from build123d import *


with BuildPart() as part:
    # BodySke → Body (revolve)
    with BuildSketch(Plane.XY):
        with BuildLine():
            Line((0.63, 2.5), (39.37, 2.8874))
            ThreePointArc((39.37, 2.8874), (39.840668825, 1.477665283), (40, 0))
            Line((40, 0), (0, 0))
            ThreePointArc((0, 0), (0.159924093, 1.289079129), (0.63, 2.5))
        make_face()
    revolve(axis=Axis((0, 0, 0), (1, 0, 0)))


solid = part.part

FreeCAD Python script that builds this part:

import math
import FreeCAD as App
import Part
import Sketcher
from FreeCAD import Vector
Q = App.Units.Quantity

doc = App.newDocument("Part")
params = doc.addObject("Spreadsheet::Sheet", "Params")
for row, (alias, value) in enumerate([
    ("sketch1_width", "40 mm"),
    ("revolution_angle", "360 deg"),
], start=1):
    params.set(f"A{row}", alias)
    params.set(f"B{row}", "=" + value)
    params.setAlias(f"B{row}", alias)

body = doc.addObject("PartDesign::Body", "Body")

sketch1 = body.newObject("Sketcher::SketchObject", "Sketch")
sketch1.AttachmentSupport = (doc.getObject("XY_Plane"), [""])
sketch1.MapMode = "FlatFace"
sketch1.addGeometry(Part.LineSegment(Vector(39.4, 2.9, 0), Vector(0.6, 2.5, 0)), False)
sketch1.addGeometry(Part.ArcOfCircle(Part.Circle(Vector(5.3, 0, 0), Vector(0, 0, 1), 5.3), math.radians(152), math.radians(180)), False)
sketch1.addGeometry(Part.LineSegment(Vector(0, 0, 0), Vector(40, 0, 0)), False)
sketch1.addGeometry(Part.ArcOfCircle(Part.Circle(Vector(33.1, 0, 0), Vector(0, 0, 1), 6.9), math.radians(0), math.radians(25)), False)
sketch1.addConstraint(Sketcher.Constraint("Coincident", 0, 2, 1, 1))
sketch1.addConstraint(Sketcher.Constraint("Coincident", 1, 2, 2, 1))
sketch1.addConstraint(Sketcher.Constraint("Coincident", 2, 2, 3, 1))
sketch1.addConstraint(Sketcher.Constraint("Coincident", 3, 2, 0, 1))
sketch1.addConstraint(Sketcher.Constraint("Horizontal", 2))
sketch1.addConstraint(Sketcher.Constraint("Coincident", 1, 2, -1, 1))
sketch1.addConstraint(Sketcher.Constraint("PointOnObject", 1, 3, -1))
sketch1.addConstraint(Sketcher.Constraint("PointOnObject", 3, 3, -1))
sketch1.addConstraint(Sketcher.Constraint("DistanceX", 2, 1, 2, 2, Q("40 mm")))
sketch1.addConstraint(Sketcher.Constraint("DistanceY", -1, 1, 0, 2, Q("2.5 mm")))
sketch1.addConstraint(Sketcher.Constraint("DistanceX", -1, 1, 0, 2, Q("0.63 mm")))
sketch1.addConstraint(Sketcher.Constraint("DistanceX", -1, 1, 3, 2, Q("39.37 mm")))
sketch1.addConstraint(Sketcher.Constraint("Radius", 3, Q("6.931729 mm")))
sketch1.setExpression("Constraints[8]", "Params.sketch1_width")
revolution = body.newObject("PartDesign::Revolution", "Revolution")
revolution.Profile = sketch1
revolution.ReferenceAxis = (sketch1, ["H_Axis"])
revolution.setExpression("Angle", "Params.revolution_angle")

doc.recompute()
